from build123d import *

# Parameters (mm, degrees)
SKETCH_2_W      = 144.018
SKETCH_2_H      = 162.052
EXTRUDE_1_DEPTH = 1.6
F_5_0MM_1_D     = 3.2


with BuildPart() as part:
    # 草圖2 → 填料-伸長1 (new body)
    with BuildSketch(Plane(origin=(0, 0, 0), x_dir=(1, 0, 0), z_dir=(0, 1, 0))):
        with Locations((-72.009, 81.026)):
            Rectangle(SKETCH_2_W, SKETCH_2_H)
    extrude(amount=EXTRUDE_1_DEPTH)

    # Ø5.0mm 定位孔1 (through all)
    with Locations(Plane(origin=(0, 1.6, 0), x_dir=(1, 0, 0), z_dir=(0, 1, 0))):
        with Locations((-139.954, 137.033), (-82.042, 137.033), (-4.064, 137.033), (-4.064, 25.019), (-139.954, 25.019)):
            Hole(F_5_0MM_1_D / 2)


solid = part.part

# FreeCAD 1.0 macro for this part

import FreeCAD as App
import Part
import Sketcher

doc = App.newDocument("Part")
params = doc.addObject("Spreadsheet::Sheet", "Params")
for row, (alias, value) in enumerate([
    ("pad1_length", "1.6 mm"),
    ("sketch2_diameter", "3.2 mm"),
    ("hole_diameter", "3.2 mm"),
], start=1):
    params.set(f"A{row}", alias)
    params.set(f"B{row}", "=" + value)
    params.setAlias(f"B{row}", alias)

body = doc.addObject("PartDesign::Body", "Body")

# Sketch on XZ plane
sketch1 = body.newObject("Sketcher::SketchObject", "Sketch")
sketch1.AttachmentSupport = (doc.getObject("XZ_Plane"), [""])
sketch1.MapMode = "FlatFace"
sketch1.addGeometry(Part.LineSegment(App.Vector(-144, -162, 0), App.Vector(-144, 0, 0)), False)
sketch1.addGeometry(Part.LineSegment(App.Vector(-144, 0, 0), App.Vector(0, 0, 0)), False)
sketch1.addGeometry(Part.LineSegment(App.Vector(0, 0, 0), App.Vector(0, -162, 0)), False)
sketch1.addGeometry(Part.LineSegment(App.Vector(0, -162, 0), App.Vector(-144, -162, 0)), False)
sketch1.addConstraint(Sketcher.Constraint("Coincident", 0, 2, 1, 1))
sketch1.addConstraint(Sketcher.Constraint("Coincident", 1, 2, 2, 1))
sketch1.addConstraint(Sketcher.Constraint("Coincident", 2, 2, 3, 1))
sketch1.addConstraint(Sketcher.Constraint("Coincident", 3, 2, 0, 1))
sketch1.addConstraint(Sketcher.Constraint("Vertical", 0))
sketch1.addConstraint(Sketcher.Constraint("Horizontal", 1))
sketch1.addConstraint(Sketcher.Constraint("Vertical", 2))
sketch1.addConstraint(Sketcher.Constraint("Horizontal", 3))
sketch1.addConstraint(Sketcher.Constraint("Coincident", 1, 2, -1, 1))
sketch1.addConstraint(Sketcher.Constraint("DistanceX", 1, 1, 1, 2, 144.018))
sketch1.addConstraint(Sketcher.Constraint("DistanceY", 0, 1, 0, 2, 162.052))
pad1 = body.newObject("PartDesign::Pad", "Pad")
pad1.Profile = sketch1
pad1.setExpression("Length", "Params.pad1_length")
pad1.Reversed = True

# Sketch on XZ plane
sketch2 = body.newObject("Sketcher::SketchObject", "Sketch001")
sketch2.AttachmentSupport = (doc.getObject("XZ_Plane"), [""])
sketch2.MapMode = "FlatFace"
sketch2.AttachmentOffset = App.Placement(App.Vector(0, 0, -1.6), App.Rotation())
sketch2.addGeometry(Part.Circle(App.Vector(-140, -137, 0), App.Vector(0, 0, 1), 1.6), False)
sketch2.addGeometry(Part.Circle(App.Vector(-82, -137, 0), App.Vector(0, 0, 1), 1.6), False)
sketch2.addGeometry(Part.Circle(App.Vector(-4.1, -137, 0), App.Vector(0, 0, 1), 1.6), False)
sketch2.addGeometry(Part.Circle(App.Vector(-4.1, -25, 0), App.Vector(0, 0, 1), 1.6), False)
sketch2.addGeometry(Part.Circle(App.Vector(-140, -25, 0), App.Vector(0, 0, 1), 1.6), False)
sketch2.addConstraint(Sketcher.Constraint("Equal", 0, 1))
sketch2.addConstraint(Sketcher.Constraint("Equal", 1, 2))
sketch2.addConstraint(Sketcher.Constraint("Equal", 2, 3))
sketch2.addConstraint(Sketcher.Constraint("Equal", 3, 4))
sketch2.addConstraint(Sketcher.Constraint("Horizontal", 0, 3, 1, 3))
sketch2.addConstraint(Sketcher.Constraint("Horizontal", 1, 3, 2, 3))
sketch2.addConstraint(Sketcher.Constraint("Horizontal", 3, 3, 4, 3))
sketch2.addConstraint(Sketcher.Constraint("Vertical", 2, 3, 3, 3))
sketch2.addConstraint(Sketcher.Constraint("Vertical", 0, 3, 4, 3))
sketch2.addConstraint(Sketcher.Constraint("Diameter", 0, 3.2))
sketch2.addConstraint(Sketcher.Constraint("DistanceX", 0, 3, 2, 3, 135.89))
sketch2.addConstraint(Sketcher.Constraint("DistanceX", 0, 3, -1, 1, 139.954))
sketch2.addConstraint(Sketcher.Constraint("DistanceY", 0, 3, -1, 1, 137.033))
sketch2.addConstraint(Sketcher.Constraint("DistanceX", 1, 3, -1, 1, 82.042))
sketch2.addConstraint(Sketcher.Constraint("DistanceY", 3, 3, -1, 1, 25.019))
sketch2.setExpression("Constraints[9]", "Params.sketch2_diameter")
doc.recompute()
hole = body.newObject("PartDesign::Hole", "Hole")
hole.Profile = sketch2
hole.ThreadType = "None"
hole.setExpression("Diameter", "Params.hole_diameter")
hole.DepthType = "ThroughAll"
hole.Reversed = True

doc.recompute()
